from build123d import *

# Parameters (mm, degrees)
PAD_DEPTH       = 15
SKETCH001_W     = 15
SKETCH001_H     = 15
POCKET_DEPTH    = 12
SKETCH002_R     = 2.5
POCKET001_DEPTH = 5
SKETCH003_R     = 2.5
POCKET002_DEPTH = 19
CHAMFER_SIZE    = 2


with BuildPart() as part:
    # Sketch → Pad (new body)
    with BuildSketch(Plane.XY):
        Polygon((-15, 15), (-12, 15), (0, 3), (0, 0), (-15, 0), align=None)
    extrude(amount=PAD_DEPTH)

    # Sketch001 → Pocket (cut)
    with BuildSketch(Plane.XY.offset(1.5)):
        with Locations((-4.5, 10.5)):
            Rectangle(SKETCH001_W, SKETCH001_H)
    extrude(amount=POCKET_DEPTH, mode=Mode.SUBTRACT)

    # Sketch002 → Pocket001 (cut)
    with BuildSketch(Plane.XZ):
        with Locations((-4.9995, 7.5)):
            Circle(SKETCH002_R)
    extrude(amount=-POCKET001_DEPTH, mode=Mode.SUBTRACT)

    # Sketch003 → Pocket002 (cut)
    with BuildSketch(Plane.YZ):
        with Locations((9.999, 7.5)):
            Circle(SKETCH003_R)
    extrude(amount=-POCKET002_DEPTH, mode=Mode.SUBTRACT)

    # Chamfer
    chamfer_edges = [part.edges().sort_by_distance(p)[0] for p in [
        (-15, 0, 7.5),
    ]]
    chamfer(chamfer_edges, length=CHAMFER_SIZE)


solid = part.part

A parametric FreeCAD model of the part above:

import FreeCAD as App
import Part
import Sketcher
Q = App.Units.Quantity


def edges_at(feature, points):
    """Names of the edges that pass closest to the given points."""
    edges = feature.Shape.Edges
    near = lambda p: min(range(len(edges)), key=lambda i: edges[i].distToShape(Part.Vertex(*p))[0])
    return sorted({f"Edge{near(p) + 1}" for p in points})


def add_polygon(sketch, points):
    """Adds a closed chain of lines whose ends are joined by coincident constraints."""
    first, n = sketch.GeometryCount, len(points)
    for a, b in zip(points, points[1:] + points[:1]):
        sketch.addGeometry(Part.LineSegment(App.Vector(*a, 0), App.Vector(*b, 0)), False)
    for i in range(n):
        sketch.addConstraint(Sketcher.Constraint("Coincident", first + i, 2, first + (i + 1) % n, 1))

doc = App.newDocument("Part")
body = doc.addObject("PartDesign::Body", "Body")

sketch1 = body.newObject("Sketcher::SketchObject", "Sketch")
sketch1.AttachmentSupport = (doc.getObject("XY_Plane"), [""])
sketch1.MapMode = "FlatFace"
add_polygon(sketch1, [(-12, 15), (-15, 15), (-15, 0), (0, 0), (0, 3)])
sketch1.addConstraint(Sketcher.Constraint("Horizontal", 0))
sketch1.addConstraint(Sketcher.Constraint("Vertical", 1))
sketch1.addConstraint(Sketcher.Constraint("Horizontal", 2))
sketch1.addConstraint(Sketcher.Constraint("Vertical", 3))
sketch1.addConstraint(Sketcher.Constraint("Coincident", 2, 2, -1, 1))
sketch1.addConstraint(Sketcher.Constraint("Equal", 2, 1))
sketch1.addConstraint(Sketcher.Constraint("Equal", 0, 3))
sketch1.addConstraint(Sketcher.Constraint("DistanceX", 0, 2, 0, 1, Q("3 mm")))
sketch1.addConstraint(Sketcher.Constraint("DistanceX", 2, 1, 2, 2, Q("15 mm")))
pad1 = body.newObject("PartDesign::Pad", "Pad")
pad1.Profile = sketch1
pad1.Length = 15

sketch2 = body.newObject("Sketcher::SketchObject", "Sketch001")
sketch2.AttachmentSupport = (doc.getObject("XY_Plane"), [""])
sketch2.MapMode = "FlatFace"
sketch2.AttachmentOffset = App.Placement(App.Vector(0, 0, 1.5), App.Rotation())
add_polygon(sketch2, [(-12, 18), (-12, 3), (3, 3), (3, 18)])
sketch2.addConstraint(Sketcher.Constraint("Vertical", 0))
sketch2.addConstraint(Sketcher.Constraint("Horizontal", 1))
sketch2.addConstraint(Sketcher.Constraint("Vertical", 2))
sketch2.addConstraint(Sketcher.Constraint("Horizontal", 3))
sketch2.addConstraint(Sketcher.Constraint("Equal", 3, 0))
sketch2.addConstraint(Sketcher.Constraint("DistanceX", 1, 1, 1, 2, Q("15 mm")))
sketch2.addConstraint(Sketcher.Constraint("DistanceX", 0, 2, -1, 1, Q("12 mm")))
sketch2.addConstraint(Sketcher.Constraint("DistanceY", -1, 1, 0, 2, Q("3 mm")))
pocket1 = body.newObject("PartDesign::Pocket", "Pocket")
pocket1.Profile = sketch2
pocket1.Length = 12
pocket1.Reversed = True

sketch3 = body.newObject("Sketcher::SketchObject", "Sketch002")
sketch3.AttachmentSupport = (doc.getObject("XZ_Plane"), [""])
sketch3.MapMode = "FlatFace"
sketch3.addGeometry(Part.Circle(App.Vector(-4.9995, 7.5, 0), App.Vector(0, 0, 1), 2.5), False)
sketch3.addConstraint(Sketcher.Constraint("Diameter", 0, Q("5 mm")))
sketch3.addConstraint(Sketcher.Constraint("DistanceY", -1, 1, 0, 3, Q("7.5 mm")))
sketch3.addConstraint(Sketcher.Constraint("DistanceX", 0, 3, -1, 1, Q("4.9995 mm")))
pocket2 = body.newObject("PartDesign::Pocket", "Pocket001")
pocket2.Profile = sketch3
pocket2.Length = 5

sketch4 = body.newObject("Sketcher::SketchObject", "Sketch003")
sketch4.AttachmentSupport = (doc.getObject("YZ_Plane"), [""])
sketch4.MapMode = "FlatFace"
sketch4.addGeometry(Part.Circle(App.Vector(9.999, 7.5, 0), App.Vector(0, 0, 1), 2.5), False)
sketch4.addConstraint(Sketcher.Constraint("Diameter", 0, Q("5 mm")))
sketch4.addConstraint(Sketcher.Constraint("DistanceY", -1, 1, 0, 3, Q("7.5 mm")))
sketch4.addConstraint(Sketcher.Constraint("DistanceX", -1, 1, 0, 3, Q("9.999 mm")))
pocket3 = body.newObject("PartDesign::Pocket", "Pocket002")
pocket3.Profile = sketch4
pocket3.Length = 19
doc.recompute()

chamfer = body.newObject("PartDesign::Chamfer", "Chamfer")
chamfer.Base = (pocket3, edges_at(pocket3, [(-15, 0, 7.5)]))
chamfer.Size = 2

doc.recompute()
